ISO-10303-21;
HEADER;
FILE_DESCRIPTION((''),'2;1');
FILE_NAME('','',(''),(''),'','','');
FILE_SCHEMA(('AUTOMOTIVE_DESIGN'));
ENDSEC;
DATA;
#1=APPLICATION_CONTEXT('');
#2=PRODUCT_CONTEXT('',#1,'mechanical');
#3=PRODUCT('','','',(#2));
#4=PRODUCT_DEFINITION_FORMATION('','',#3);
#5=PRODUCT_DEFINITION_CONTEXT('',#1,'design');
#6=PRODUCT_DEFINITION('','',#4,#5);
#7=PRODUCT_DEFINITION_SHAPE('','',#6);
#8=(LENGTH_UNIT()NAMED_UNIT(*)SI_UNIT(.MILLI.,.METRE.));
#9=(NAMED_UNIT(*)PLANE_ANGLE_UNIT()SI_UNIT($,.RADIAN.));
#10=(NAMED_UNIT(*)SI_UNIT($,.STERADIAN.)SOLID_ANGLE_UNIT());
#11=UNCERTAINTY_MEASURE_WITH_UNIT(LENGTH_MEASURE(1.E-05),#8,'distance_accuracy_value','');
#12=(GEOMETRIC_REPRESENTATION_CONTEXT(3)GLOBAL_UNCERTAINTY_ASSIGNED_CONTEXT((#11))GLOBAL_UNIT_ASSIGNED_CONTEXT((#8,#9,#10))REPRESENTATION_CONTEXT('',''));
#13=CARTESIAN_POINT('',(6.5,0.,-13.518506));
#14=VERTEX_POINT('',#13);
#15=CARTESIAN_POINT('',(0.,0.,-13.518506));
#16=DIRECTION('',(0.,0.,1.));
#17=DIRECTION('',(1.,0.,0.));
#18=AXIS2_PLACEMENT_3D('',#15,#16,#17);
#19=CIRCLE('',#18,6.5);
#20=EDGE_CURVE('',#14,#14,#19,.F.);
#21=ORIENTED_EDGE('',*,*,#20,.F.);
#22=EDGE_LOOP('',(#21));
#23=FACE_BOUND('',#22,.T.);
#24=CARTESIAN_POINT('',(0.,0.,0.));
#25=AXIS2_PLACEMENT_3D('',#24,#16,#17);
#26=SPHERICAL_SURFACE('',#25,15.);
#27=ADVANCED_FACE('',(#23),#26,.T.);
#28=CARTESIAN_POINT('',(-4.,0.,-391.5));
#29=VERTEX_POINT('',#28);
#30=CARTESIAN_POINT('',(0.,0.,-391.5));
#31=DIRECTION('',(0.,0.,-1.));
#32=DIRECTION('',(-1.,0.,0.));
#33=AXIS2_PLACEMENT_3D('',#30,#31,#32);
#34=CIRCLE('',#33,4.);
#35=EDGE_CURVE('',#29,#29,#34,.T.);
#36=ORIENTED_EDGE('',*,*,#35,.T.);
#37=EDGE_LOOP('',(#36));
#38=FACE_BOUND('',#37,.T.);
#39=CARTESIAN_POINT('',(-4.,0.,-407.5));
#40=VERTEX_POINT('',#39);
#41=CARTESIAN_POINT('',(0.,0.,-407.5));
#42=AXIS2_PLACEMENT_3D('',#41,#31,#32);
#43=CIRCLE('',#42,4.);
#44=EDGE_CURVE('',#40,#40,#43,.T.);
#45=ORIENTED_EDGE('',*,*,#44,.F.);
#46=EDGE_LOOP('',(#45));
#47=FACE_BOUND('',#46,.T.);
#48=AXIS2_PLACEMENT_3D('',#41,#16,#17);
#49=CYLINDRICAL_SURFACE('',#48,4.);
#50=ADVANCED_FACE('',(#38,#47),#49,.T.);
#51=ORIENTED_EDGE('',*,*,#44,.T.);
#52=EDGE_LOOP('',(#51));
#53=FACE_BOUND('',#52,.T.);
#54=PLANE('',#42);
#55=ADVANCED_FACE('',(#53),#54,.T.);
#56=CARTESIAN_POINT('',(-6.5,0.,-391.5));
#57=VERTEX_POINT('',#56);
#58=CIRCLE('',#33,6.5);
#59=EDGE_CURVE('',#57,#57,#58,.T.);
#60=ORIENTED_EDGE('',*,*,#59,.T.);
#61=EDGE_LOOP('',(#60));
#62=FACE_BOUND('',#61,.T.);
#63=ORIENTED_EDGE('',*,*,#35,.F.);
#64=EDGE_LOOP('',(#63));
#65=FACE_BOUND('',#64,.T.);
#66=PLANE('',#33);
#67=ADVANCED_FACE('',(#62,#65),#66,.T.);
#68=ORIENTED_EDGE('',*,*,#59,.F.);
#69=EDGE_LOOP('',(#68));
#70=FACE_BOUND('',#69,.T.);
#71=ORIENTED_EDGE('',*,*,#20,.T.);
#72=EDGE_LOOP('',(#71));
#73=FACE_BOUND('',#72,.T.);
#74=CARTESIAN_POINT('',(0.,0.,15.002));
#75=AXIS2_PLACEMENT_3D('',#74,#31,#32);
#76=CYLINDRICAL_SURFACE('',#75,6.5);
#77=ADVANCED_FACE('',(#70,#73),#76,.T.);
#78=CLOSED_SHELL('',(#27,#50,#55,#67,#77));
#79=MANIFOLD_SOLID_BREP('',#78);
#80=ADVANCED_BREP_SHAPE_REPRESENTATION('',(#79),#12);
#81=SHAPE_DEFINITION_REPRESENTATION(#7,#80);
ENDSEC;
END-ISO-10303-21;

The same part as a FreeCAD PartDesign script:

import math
import FreeCAD as App
import Part
import Sketcher
from FreeCAD import Vector

doc = App.newDocument("Part")
body = doc.addObject("PartDesign::Body", "Body")
body.AllowCompound = True

sketch1 = body.newObject("Sketcher::SketchObject", "Sketch")
sketch1.AttachmentSupport = (doc.getObject("XY_Plane"), [""])
sketch1.MapMode = "FlatFace"
sketch1.addGeometry([
    Part.LineSegment(Vector(0, -15, 0), Vector(0, 15, 0)),
    Part.ArcOfCircle(Part.Circle(Vector(0, 0, 0), Vector(0, 0, 1), 15), math.radians(90), math.radians(270)),
], False)
sketch1.addConstraint([
    Sketcher.Constraint("Coincident", 0, 1, 1, 2),
    Sketcher.Constraint("Coincident", 1, 1, 0, 2),
    Sketcher.Constraint("Vertical", 0),
    Sketcher.Constraint("Coincident", 1, 3, -1, 1),
    Sketcher.Constraint("PointOnObject", 0, 1, -2),
    Sketcher.Constraint("Radius", 1, 15.0),
])
revolution = body.newObject("PartDesign::Revolution", "Revolution")
revolution.Profile = sketch1
revolution.ReferenceAxis = (sketch1, ["V_Axis"])
revolution.Angle = 360

sketch2 = body.newObject("Sketcher::SketchObject", "Sketch001")
sketch2.AttachmentSupport = (doc.getObject("XY_Plane"), [""])
sketch2.MapMode = "FlatFace"
sketch2.AttachmentOffset = App.Placement(Vector(0, 0, -15), App.Rotation())
sketch2.addGeometry(Part.Circle(Vector(0, 0, 0), Vector(0, 0, 1), 6), False)
sketch2.addConstraint([
    Sketcher.Constraint("Coincident", 0, 3, -1, 1),
    Sketcher.Constraint("Diameter", 0, 13.0),
])
pad1 = body.newObject("PartDesign::Pad", "Pad")
pad1.Profile = sketch2
pad1.Length = 376.5
pad1.Reversed = True

sketch3 = body.newObject("Sketcher::SketchObject", "Sketch002")
sketch3.AttachmentSupport = (doc.getObject("XY_Plane"), [""])
sketch3.MapMode = "FlatFace"
sketch3.AttachmentOffset = App.Placement(Vector(0, 0, -15), App.Rotation())
sketch3.addGeometry(Part.Circle(Vector(0, 0, 0), Vector(0, 0, 1), 6), False)
sketch3.addConstraint([
    Sketcher.Constraint("Coincident", 0, 3, -1, 1),
    Sketcher.Constraint("Diameter", 0, 13.0),
])
pad2 = body.newObject("PartDesign::Pad", "Pad001")
pad2.Profile = sketch3
pad2.Length = 1.481494

sketch4 = body.newObject("Sketcher::SketchObject", "Sketch003")
sketch4.AttachmentSupport = (doc.getObject("XY_Plane"), [""])
sketch4.MapMode = "FlatFace"
sketch4.AttachmentOffset = App.Placement(Vector(0, 0, -391.5), App.Rotation())
sketch4.addGeometry(Part.Circle(Vector(0, 0, 0), Vector(0, 0, 1), 4), False)
sketch4.addConstraint([
    Sketcher.Constraint("Coincident", 0, 3, -1, 1),
    Sketcher.Constraint("Diameter", 0, 8.0),
])
pad3 = body.newObject("PartDesign::Pad", "Pad002")
pad3.Profile = sketch4
pad3.Length = 16
pad3.Reversed = True

doc.recompute()
